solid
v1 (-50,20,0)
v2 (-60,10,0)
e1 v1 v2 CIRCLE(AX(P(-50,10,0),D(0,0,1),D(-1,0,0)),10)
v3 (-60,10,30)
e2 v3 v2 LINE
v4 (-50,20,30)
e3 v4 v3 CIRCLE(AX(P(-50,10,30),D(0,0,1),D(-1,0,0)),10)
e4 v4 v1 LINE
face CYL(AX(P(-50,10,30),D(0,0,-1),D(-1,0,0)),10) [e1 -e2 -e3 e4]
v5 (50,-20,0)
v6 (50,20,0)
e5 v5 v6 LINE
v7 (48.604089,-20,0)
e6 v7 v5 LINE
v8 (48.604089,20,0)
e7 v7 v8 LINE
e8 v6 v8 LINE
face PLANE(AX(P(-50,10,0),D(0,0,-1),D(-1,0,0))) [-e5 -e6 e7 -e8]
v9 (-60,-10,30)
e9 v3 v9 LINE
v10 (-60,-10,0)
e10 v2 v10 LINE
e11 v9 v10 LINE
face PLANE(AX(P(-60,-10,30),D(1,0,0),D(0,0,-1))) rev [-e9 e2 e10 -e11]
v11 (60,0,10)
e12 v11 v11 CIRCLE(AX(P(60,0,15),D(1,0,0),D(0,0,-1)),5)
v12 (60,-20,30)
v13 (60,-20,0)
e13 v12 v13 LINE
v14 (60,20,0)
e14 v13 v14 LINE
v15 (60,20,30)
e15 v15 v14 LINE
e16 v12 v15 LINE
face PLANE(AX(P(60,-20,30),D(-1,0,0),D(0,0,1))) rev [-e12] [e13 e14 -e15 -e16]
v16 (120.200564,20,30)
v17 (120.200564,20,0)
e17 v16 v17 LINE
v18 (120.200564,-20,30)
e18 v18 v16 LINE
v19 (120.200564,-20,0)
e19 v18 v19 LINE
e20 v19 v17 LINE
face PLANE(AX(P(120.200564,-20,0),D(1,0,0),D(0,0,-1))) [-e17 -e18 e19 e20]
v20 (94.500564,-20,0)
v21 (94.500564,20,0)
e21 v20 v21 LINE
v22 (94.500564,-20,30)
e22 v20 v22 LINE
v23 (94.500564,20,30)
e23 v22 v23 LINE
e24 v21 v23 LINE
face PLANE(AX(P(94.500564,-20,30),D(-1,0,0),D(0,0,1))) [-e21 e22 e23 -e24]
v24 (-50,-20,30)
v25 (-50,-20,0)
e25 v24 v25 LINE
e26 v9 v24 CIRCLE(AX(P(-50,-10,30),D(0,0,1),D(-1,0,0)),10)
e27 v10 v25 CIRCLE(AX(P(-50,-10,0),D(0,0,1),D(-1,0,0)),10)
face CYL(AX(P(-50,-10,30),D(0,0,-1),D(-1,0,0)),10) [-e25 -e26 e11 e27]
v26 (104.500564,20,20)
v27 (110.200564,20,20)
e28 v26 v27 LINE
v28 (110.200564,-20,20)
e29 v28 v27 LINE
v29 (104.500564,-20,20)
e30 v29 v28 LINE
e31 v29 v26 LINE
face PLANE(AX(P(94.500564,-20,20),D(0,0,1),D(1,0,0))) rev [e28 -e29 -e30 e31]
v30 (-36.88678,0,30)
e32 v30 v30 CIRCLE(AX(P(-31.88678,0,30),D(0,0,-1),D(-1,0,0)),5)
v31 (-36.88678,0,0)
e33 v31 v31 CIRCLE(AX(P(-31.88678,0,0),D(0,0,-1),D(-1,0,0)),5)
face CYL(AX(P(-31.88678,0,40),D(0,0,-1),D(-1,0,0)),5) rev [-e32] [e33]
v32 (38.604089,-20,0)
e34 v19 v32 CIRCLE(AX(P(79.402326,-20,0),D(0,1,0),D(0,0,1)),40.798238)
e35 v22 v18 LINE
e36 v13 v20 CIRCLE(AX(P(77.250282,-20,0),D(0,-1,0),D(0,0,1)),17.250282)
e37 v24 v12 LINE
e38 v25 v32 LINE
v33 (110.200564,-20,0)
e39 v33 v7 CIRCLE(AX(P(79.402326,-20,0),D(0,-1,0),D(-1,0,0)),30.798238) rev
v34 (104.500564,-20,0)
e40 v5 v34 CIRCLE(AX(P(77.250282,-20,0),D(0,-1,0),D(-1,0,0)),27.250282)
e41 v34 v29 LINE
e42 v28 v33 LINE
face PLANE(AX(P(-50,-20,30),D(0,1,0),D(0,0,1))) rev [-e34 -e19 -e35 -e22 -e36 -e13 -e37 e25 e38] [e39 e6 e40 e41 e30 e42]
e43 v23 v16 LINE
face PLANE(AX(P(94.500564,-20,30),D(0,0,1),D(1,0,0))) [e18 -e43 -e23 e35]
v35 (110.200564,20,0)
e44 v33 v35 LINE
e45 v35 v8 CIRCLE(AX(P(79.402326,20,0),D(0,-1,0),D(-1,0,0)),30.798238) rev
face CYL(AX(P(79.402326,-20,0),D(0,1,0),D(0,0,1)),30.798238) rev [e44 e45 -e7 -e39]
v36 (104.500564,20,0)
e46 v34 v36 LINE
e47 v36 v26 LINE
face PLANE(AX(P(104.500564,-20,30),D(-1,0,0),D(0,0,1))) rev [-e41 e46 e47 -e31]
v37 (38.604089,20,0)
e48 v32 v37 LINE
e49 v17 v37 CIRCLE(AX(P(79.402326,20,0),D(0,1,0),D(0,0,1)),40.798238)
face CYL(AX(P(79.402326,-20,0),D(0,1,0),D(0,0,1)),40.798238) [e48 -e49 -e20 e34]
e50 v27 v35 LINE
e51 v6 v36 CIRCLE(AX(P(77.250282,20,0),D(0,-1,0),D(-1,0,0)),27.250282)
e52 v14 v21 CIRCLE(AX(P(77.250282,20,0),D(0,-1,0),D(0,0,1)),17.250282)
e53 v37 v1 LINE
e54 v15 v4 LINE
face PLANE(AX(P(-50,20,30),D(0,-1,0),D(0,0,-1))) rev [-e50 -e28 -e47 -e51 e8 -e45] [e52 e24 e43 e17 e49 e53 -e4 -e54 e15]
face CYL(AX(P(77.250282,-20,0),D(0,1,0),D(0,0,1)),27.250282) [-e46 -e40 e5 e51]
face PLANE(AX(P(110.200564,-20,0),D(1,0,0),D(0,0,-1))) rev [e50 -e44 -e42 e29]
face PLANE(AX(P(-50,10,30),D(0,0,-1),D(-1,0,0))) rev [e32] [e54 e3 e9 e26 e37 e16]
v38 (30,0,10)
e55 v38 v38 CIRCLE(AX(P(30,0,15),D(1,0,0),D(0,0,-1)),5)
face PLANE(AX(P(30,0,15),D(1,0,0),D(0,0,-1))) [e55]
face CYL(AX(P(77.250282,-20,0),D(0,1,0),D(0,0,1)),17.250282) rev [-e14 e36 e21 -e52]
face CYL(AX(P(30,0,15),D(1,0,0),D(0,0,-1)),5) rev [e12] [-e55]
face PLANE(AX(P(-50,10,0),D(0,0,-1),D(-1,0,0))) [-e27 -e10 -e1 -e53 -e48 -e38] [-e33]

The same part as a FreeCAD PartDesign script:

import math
import FreeCAD as App
import Part
import Sketcher

doc = App.newDocument("Part")
body = doc.addObject("PartDesign::Body", "Body")

# Sketch on XY plane
sketch1 = body.newObject("Sketcher::SketchObject", "Sketch")
sketch1.AttachmentSupport = (doc.getObject("XY_Plane"), [""])
sketch1.MapMode = "FlatFace"
sketch1.addGeometry(Part.LineSegment(App.Vector(-50, -20, 0), App.Vector(60, -20, 0)), False)
sketch1.addGeometry(Part.LineSegment(App.Vector(60, -20, 0), App.Vector(60, 20, 0)), False)
sketch1.addGeometry(Part.LineSegment(App.Vector(60, 20, 0), App.Vector(-50, 20, 0)), False)
sketch1.addGeometry(Part.ArcOfCircle(Part.Circle(App.Vector(-50, 10, 0), App.Vector(0, 0, 1), 10), math.radians(90), math.radians(180)), False)
sketch1.addGeometry(Part.LineSegment(App.Vector(-60, 10, 0), App.Vector(-60, -10, 0)), False)
sketch1.addGeometry(Part.ArcOfCircle(Part.Circle(App.Vector(-50, -10, 0), App.Vector(0, 0, 1), 10), math.radians(180), math.radians(270)), False)
sketch1.addConstraint(Sketcher.Constraint("Coincident", 0, 2, 1, 1))
sketch1.addConstraint(Sketcher.Constraint("Coincident", 1, 2, 2, 1))
sketch1.addConstraint(Sketcher.Constraint("Tangent", 2, 2, 3, 1))
sketch1.addConstraint(Sketcher.Constraint("Tangent", 3, 2, 4, 1))
sketch1.addConstraint(Sketcher.Constraint("Tangent", 4, 2, 5, 1))
sketch1.addConstraint(Sketcher.Constraint("Tangent", 5, 2, 0, 1))
sketch1.addConstraint(Sketcher.Constraint("Horizontal", 0))
sketch1.addConstraint(Sketcher.Constraint("Vertical", 1))
sketch1.addConstraint(Sketcher.Constraint("Horizontal", 2))
sketch1.addConstraint(Sketcher.Constraint("Vertical", 4))
sketch1.addConstraint(Sketcher.Constraint("Equal", 3, 5))
sketch1.addConstraint(Sketcher.Constraint("Radius", 3, 10.0))
sketch1.addConstraint(Sketcher.Constraint("DistanceX", 0, 1, 0, 2, 110.0))
sketch1.addConstraint(Sketcher.Constraint("DistanceY", 1, 1, 1, 2, 40.0))
sketch1.addConstraint(Sketcher.Constraint("DistanceX", 3, 3, -1, 1, 50.0))
sketch1.addConstraint(Sketcher.Constraint("DistanceY", -1, 1, 3, 3, 10.0))
pad1 = body.newObject("PartDesign::Pad", "Pad")
pad1.Profile = sketch1
pad1.Length = 30

# Sketch on XY plane
sketch2 = body.newObject("Sketcher::SketchObject", "Sketch001")
sketch2.AttachmentSupport = (doc.getObject("XY_Plane"), [""])
sketch2.MapMode = "FlatFace"
sketch2.addGeometry(Part.Circle(App.Vector(-32, 0, 0), App.Vector(0, 0, 1), 5), False)
sketch2.addConstraint(Sketcher.Constraint("PointOnObject", 0, 3, -1))
sketch2.addConstraint(Sketcher.Constraint("Diameter", 0, 10.0))
sketch2.addConstraint(Sketcher.Constraint("DistanceX", 0, 3, -1, 1, 31.88678))
pocket1 = body.newObject("PartDesign::Pocket", "Pocket")
pocket1.Profile = sketch2
pocket1.Length = 40
pocket1.Reversed = True

# Sketch on YZ plane
sketch3 = body.newObject("Sketcher::SketchObject", "Sketch002")
sketch3.AttachmentSupport = (doc.getObject("YZ_Plane"), [""])
sketch3.MapMode = "FlatFace"
sketch3.AttachmentOffset = App.Placement(App.Vector(0, 0, 60), App.Rotation())
sketch3.addGeometry(Part.Circle(App.Vector(0, 15, 0), App.Vector(0, 0, 1), 5), False)
sketch3.addConstraint(Sketcher.Constraint("PointOnObject", 0, 3, -2))
sketch3.addConstraint(Sketcher.Constraint("Diameter", 0, 10.0))
sketch3.addConstraint(Sketcher.Constraint("DistanceY", -1, 1, 0, 3, 15.0))
pocket2 = body.newObject("PartDesign::Pocket", "Pocket001")
pocket2.Profile = sketch3
pocket2.Length = 30

# Sketch on XZ plane
sketch4 = body.newObject("Sketcher::SketchObject", "Sketch003")
sketch4.AttachmentSupport = (doc.getObject("XZ_Plane"), [""])
sketch4.MapMode = "FlatFace"
sketch4.addGeometry(Part.ArcOfCircle(Part.Circle(App.Vector(77, 0, 0), App.Vector(0, 0, 1), 17), math.radians(180), math.radians(360)), False)
sketch4.addGeometry(Part.LineSegment(App.Vector(60, 0, 0), App.Vector(50, 0, 0)), False)
sketch4.addGeometry(Part.ArcOfCircle(Part.Circle(App.Vector(77, 0, 0), App.Vector(0, 0, 1), 27), math.radians(180), math.radians(360)), False)
sketch4.addGeometry(Part.LineSegment(App.Vector(105, 0, 0), App.Vector(105, 20, 0)), False)
sketch4.addGeometry(Part.LineSegment(App.Vector(105, 20, 0), App.Vector(110, 20, 0)), False)
sketch4.addGeometry(Part.LineSegment(App.Vector(110, 20, 0), App.Vector(110, 0, 0)), False)
sketch4.addGeometry(Part.ArcOfCircle(Part.Circle(App.Vector(79, 0, 0), App.Vector(0, 0, 1), 31), math.radians(180), math.radians(360)), False)
sketch4.addGeometry(Part.LineSegment(App.Vector(49, 0, 0), App.Vector(39, 0, 0)), False)
sketch4.addGeometry(Part.ArcOfCircle(Part.Circle(App.Vector(79, 0, 0), App.Vector(0, 0, 1), 41), math.radians(180), math.radians(360)), False)
sketch4.addGeometry(Part.LineSegment(App.Vector(120, 0, 0), App.Vector(120, 30, 0)), False)
sketch4.addGeometry(Part.LineSegment(App.Vector(120, 30, 0), App.Vector(95, 30, 0)), False)
sketch4.addGeometry(Part.LineSegment(App.Vector(95, 30, 0), App.Vector(95, 0, 0)), False)
sketch4.addConstraint(Sketcher.Constraint("Coincident", 0, 1, 1, 1))
sketch4.addConstraint(Sketcher.Constraint("Coincident", 1, 2, 2, 1))
sketch4.addConstraint(Sketcher.Constraint("Tangent", 2, 2, 3, 1))
sketch4.addConstraint(Sketcher.Constraint("Coincident", 3, 2, 4, 1))
sketch4.addConstraint(Sketcher.Constraint("Coincident", 4, 2, 5, 1))
sketch4.addConstraint(Sketcher.Constraint("Tangent", 5, 2, 6, 2))
sketch4.addConstraint(Sketcher.Constraint("Coincident", 6, 1, 7, 1))
sketch4.addConstraint(Sketcher.Constraint("Coincident", 7, 2, 8, 1))
sketch4.addConstraint(Sketcher.Constraint("Tangent", 8, 2, 9, 1))
sketch4.addConstraint(Sketcher.Constraint("Coincident", 9, 2, 10, 1))
sketch4.addConstraint(Sketcher.Constraint("Coincident", 10, 2, 11, 1))
sketch4.addConstraint(Sketcher.Constraint("Tangent", 11, 2, 0, 2))
sketch4.addConstraint(Sketcher.Constraint("Horizontal", 1))
sketch4.addConstraint(Sketcher.Constraint("Vertical", 3))
sketch4.addConstraint(Sketcher.Constraint("Horizontal", 4))
sketch4.addConstraint(Sketcher.Constraint("Vertical", 5))
sketch4.addConstraint(Sketcher.Constraint("Horizontal", 7))
sketch4.addConstraint(Sketcher.Constraint("Vertical", 9))
sketch4.addConstraint(Sketcher.Constraint("Horizontal", 10))
sketch4.addConstraint(Sketcher.Constraint("Vertical", 11))
sketch4.addConstraint(Sketcher.Constraint("Coincident", 2, 3, 0, 3))
sketch4.addConstraint(Sketcher.Constraint("Coincident", 8, 3, 6, 3))
sketch4.addConstraint(Sketcher.Constraint("PointOnObject", 0, 3, -1))
sketch4.addConstraint(Sketcher.Constraint("PointOnObject", 6, 3, -1))
sketch4.addConstraint(Sketcher.Constraint("PointOnObject", 0, 1, -1))
sketch4.addConstraint(Sketcher.Constraint("PointOnObject", 6, 1, -1))
sketch4.addConstraint(Sketcher.Constraint("Equal", 1, 7))
sketch4.addConstraint(Sketcher.Constraint("DistanceX", 1, 2, 1, 1, 10.0))
sketch4.addConstraint(Sketcher.Constraint("DistanceY", 3, 1, 3, 2, 20.0))
sketch4.addConstraint(Sketcher.Constraint("DistanceY", 9, 1, 9, 2, 30.0))
sketch4.addConstraint(Sketcher.Constraint("DistanceX", 4, 1, 4, 2, 5.7))
sketch4.addConstraint(Sketcher.Constraint("DistanceX", -1, 1, 0, 1, 60.0))
sketch4.addConstraint(Sketcher.Constraint("Radius", 0, 17.250282))
sketch4.addConstraint(Sketcher.Constraint("Radius", 6, 30.798238))
pad2 = body.newObject("PartDesign::Pad", "Pad001")
pad2.Profile = sketch4
pad2.Length = 40
pad2.Midplane = True

doc.recompute()
